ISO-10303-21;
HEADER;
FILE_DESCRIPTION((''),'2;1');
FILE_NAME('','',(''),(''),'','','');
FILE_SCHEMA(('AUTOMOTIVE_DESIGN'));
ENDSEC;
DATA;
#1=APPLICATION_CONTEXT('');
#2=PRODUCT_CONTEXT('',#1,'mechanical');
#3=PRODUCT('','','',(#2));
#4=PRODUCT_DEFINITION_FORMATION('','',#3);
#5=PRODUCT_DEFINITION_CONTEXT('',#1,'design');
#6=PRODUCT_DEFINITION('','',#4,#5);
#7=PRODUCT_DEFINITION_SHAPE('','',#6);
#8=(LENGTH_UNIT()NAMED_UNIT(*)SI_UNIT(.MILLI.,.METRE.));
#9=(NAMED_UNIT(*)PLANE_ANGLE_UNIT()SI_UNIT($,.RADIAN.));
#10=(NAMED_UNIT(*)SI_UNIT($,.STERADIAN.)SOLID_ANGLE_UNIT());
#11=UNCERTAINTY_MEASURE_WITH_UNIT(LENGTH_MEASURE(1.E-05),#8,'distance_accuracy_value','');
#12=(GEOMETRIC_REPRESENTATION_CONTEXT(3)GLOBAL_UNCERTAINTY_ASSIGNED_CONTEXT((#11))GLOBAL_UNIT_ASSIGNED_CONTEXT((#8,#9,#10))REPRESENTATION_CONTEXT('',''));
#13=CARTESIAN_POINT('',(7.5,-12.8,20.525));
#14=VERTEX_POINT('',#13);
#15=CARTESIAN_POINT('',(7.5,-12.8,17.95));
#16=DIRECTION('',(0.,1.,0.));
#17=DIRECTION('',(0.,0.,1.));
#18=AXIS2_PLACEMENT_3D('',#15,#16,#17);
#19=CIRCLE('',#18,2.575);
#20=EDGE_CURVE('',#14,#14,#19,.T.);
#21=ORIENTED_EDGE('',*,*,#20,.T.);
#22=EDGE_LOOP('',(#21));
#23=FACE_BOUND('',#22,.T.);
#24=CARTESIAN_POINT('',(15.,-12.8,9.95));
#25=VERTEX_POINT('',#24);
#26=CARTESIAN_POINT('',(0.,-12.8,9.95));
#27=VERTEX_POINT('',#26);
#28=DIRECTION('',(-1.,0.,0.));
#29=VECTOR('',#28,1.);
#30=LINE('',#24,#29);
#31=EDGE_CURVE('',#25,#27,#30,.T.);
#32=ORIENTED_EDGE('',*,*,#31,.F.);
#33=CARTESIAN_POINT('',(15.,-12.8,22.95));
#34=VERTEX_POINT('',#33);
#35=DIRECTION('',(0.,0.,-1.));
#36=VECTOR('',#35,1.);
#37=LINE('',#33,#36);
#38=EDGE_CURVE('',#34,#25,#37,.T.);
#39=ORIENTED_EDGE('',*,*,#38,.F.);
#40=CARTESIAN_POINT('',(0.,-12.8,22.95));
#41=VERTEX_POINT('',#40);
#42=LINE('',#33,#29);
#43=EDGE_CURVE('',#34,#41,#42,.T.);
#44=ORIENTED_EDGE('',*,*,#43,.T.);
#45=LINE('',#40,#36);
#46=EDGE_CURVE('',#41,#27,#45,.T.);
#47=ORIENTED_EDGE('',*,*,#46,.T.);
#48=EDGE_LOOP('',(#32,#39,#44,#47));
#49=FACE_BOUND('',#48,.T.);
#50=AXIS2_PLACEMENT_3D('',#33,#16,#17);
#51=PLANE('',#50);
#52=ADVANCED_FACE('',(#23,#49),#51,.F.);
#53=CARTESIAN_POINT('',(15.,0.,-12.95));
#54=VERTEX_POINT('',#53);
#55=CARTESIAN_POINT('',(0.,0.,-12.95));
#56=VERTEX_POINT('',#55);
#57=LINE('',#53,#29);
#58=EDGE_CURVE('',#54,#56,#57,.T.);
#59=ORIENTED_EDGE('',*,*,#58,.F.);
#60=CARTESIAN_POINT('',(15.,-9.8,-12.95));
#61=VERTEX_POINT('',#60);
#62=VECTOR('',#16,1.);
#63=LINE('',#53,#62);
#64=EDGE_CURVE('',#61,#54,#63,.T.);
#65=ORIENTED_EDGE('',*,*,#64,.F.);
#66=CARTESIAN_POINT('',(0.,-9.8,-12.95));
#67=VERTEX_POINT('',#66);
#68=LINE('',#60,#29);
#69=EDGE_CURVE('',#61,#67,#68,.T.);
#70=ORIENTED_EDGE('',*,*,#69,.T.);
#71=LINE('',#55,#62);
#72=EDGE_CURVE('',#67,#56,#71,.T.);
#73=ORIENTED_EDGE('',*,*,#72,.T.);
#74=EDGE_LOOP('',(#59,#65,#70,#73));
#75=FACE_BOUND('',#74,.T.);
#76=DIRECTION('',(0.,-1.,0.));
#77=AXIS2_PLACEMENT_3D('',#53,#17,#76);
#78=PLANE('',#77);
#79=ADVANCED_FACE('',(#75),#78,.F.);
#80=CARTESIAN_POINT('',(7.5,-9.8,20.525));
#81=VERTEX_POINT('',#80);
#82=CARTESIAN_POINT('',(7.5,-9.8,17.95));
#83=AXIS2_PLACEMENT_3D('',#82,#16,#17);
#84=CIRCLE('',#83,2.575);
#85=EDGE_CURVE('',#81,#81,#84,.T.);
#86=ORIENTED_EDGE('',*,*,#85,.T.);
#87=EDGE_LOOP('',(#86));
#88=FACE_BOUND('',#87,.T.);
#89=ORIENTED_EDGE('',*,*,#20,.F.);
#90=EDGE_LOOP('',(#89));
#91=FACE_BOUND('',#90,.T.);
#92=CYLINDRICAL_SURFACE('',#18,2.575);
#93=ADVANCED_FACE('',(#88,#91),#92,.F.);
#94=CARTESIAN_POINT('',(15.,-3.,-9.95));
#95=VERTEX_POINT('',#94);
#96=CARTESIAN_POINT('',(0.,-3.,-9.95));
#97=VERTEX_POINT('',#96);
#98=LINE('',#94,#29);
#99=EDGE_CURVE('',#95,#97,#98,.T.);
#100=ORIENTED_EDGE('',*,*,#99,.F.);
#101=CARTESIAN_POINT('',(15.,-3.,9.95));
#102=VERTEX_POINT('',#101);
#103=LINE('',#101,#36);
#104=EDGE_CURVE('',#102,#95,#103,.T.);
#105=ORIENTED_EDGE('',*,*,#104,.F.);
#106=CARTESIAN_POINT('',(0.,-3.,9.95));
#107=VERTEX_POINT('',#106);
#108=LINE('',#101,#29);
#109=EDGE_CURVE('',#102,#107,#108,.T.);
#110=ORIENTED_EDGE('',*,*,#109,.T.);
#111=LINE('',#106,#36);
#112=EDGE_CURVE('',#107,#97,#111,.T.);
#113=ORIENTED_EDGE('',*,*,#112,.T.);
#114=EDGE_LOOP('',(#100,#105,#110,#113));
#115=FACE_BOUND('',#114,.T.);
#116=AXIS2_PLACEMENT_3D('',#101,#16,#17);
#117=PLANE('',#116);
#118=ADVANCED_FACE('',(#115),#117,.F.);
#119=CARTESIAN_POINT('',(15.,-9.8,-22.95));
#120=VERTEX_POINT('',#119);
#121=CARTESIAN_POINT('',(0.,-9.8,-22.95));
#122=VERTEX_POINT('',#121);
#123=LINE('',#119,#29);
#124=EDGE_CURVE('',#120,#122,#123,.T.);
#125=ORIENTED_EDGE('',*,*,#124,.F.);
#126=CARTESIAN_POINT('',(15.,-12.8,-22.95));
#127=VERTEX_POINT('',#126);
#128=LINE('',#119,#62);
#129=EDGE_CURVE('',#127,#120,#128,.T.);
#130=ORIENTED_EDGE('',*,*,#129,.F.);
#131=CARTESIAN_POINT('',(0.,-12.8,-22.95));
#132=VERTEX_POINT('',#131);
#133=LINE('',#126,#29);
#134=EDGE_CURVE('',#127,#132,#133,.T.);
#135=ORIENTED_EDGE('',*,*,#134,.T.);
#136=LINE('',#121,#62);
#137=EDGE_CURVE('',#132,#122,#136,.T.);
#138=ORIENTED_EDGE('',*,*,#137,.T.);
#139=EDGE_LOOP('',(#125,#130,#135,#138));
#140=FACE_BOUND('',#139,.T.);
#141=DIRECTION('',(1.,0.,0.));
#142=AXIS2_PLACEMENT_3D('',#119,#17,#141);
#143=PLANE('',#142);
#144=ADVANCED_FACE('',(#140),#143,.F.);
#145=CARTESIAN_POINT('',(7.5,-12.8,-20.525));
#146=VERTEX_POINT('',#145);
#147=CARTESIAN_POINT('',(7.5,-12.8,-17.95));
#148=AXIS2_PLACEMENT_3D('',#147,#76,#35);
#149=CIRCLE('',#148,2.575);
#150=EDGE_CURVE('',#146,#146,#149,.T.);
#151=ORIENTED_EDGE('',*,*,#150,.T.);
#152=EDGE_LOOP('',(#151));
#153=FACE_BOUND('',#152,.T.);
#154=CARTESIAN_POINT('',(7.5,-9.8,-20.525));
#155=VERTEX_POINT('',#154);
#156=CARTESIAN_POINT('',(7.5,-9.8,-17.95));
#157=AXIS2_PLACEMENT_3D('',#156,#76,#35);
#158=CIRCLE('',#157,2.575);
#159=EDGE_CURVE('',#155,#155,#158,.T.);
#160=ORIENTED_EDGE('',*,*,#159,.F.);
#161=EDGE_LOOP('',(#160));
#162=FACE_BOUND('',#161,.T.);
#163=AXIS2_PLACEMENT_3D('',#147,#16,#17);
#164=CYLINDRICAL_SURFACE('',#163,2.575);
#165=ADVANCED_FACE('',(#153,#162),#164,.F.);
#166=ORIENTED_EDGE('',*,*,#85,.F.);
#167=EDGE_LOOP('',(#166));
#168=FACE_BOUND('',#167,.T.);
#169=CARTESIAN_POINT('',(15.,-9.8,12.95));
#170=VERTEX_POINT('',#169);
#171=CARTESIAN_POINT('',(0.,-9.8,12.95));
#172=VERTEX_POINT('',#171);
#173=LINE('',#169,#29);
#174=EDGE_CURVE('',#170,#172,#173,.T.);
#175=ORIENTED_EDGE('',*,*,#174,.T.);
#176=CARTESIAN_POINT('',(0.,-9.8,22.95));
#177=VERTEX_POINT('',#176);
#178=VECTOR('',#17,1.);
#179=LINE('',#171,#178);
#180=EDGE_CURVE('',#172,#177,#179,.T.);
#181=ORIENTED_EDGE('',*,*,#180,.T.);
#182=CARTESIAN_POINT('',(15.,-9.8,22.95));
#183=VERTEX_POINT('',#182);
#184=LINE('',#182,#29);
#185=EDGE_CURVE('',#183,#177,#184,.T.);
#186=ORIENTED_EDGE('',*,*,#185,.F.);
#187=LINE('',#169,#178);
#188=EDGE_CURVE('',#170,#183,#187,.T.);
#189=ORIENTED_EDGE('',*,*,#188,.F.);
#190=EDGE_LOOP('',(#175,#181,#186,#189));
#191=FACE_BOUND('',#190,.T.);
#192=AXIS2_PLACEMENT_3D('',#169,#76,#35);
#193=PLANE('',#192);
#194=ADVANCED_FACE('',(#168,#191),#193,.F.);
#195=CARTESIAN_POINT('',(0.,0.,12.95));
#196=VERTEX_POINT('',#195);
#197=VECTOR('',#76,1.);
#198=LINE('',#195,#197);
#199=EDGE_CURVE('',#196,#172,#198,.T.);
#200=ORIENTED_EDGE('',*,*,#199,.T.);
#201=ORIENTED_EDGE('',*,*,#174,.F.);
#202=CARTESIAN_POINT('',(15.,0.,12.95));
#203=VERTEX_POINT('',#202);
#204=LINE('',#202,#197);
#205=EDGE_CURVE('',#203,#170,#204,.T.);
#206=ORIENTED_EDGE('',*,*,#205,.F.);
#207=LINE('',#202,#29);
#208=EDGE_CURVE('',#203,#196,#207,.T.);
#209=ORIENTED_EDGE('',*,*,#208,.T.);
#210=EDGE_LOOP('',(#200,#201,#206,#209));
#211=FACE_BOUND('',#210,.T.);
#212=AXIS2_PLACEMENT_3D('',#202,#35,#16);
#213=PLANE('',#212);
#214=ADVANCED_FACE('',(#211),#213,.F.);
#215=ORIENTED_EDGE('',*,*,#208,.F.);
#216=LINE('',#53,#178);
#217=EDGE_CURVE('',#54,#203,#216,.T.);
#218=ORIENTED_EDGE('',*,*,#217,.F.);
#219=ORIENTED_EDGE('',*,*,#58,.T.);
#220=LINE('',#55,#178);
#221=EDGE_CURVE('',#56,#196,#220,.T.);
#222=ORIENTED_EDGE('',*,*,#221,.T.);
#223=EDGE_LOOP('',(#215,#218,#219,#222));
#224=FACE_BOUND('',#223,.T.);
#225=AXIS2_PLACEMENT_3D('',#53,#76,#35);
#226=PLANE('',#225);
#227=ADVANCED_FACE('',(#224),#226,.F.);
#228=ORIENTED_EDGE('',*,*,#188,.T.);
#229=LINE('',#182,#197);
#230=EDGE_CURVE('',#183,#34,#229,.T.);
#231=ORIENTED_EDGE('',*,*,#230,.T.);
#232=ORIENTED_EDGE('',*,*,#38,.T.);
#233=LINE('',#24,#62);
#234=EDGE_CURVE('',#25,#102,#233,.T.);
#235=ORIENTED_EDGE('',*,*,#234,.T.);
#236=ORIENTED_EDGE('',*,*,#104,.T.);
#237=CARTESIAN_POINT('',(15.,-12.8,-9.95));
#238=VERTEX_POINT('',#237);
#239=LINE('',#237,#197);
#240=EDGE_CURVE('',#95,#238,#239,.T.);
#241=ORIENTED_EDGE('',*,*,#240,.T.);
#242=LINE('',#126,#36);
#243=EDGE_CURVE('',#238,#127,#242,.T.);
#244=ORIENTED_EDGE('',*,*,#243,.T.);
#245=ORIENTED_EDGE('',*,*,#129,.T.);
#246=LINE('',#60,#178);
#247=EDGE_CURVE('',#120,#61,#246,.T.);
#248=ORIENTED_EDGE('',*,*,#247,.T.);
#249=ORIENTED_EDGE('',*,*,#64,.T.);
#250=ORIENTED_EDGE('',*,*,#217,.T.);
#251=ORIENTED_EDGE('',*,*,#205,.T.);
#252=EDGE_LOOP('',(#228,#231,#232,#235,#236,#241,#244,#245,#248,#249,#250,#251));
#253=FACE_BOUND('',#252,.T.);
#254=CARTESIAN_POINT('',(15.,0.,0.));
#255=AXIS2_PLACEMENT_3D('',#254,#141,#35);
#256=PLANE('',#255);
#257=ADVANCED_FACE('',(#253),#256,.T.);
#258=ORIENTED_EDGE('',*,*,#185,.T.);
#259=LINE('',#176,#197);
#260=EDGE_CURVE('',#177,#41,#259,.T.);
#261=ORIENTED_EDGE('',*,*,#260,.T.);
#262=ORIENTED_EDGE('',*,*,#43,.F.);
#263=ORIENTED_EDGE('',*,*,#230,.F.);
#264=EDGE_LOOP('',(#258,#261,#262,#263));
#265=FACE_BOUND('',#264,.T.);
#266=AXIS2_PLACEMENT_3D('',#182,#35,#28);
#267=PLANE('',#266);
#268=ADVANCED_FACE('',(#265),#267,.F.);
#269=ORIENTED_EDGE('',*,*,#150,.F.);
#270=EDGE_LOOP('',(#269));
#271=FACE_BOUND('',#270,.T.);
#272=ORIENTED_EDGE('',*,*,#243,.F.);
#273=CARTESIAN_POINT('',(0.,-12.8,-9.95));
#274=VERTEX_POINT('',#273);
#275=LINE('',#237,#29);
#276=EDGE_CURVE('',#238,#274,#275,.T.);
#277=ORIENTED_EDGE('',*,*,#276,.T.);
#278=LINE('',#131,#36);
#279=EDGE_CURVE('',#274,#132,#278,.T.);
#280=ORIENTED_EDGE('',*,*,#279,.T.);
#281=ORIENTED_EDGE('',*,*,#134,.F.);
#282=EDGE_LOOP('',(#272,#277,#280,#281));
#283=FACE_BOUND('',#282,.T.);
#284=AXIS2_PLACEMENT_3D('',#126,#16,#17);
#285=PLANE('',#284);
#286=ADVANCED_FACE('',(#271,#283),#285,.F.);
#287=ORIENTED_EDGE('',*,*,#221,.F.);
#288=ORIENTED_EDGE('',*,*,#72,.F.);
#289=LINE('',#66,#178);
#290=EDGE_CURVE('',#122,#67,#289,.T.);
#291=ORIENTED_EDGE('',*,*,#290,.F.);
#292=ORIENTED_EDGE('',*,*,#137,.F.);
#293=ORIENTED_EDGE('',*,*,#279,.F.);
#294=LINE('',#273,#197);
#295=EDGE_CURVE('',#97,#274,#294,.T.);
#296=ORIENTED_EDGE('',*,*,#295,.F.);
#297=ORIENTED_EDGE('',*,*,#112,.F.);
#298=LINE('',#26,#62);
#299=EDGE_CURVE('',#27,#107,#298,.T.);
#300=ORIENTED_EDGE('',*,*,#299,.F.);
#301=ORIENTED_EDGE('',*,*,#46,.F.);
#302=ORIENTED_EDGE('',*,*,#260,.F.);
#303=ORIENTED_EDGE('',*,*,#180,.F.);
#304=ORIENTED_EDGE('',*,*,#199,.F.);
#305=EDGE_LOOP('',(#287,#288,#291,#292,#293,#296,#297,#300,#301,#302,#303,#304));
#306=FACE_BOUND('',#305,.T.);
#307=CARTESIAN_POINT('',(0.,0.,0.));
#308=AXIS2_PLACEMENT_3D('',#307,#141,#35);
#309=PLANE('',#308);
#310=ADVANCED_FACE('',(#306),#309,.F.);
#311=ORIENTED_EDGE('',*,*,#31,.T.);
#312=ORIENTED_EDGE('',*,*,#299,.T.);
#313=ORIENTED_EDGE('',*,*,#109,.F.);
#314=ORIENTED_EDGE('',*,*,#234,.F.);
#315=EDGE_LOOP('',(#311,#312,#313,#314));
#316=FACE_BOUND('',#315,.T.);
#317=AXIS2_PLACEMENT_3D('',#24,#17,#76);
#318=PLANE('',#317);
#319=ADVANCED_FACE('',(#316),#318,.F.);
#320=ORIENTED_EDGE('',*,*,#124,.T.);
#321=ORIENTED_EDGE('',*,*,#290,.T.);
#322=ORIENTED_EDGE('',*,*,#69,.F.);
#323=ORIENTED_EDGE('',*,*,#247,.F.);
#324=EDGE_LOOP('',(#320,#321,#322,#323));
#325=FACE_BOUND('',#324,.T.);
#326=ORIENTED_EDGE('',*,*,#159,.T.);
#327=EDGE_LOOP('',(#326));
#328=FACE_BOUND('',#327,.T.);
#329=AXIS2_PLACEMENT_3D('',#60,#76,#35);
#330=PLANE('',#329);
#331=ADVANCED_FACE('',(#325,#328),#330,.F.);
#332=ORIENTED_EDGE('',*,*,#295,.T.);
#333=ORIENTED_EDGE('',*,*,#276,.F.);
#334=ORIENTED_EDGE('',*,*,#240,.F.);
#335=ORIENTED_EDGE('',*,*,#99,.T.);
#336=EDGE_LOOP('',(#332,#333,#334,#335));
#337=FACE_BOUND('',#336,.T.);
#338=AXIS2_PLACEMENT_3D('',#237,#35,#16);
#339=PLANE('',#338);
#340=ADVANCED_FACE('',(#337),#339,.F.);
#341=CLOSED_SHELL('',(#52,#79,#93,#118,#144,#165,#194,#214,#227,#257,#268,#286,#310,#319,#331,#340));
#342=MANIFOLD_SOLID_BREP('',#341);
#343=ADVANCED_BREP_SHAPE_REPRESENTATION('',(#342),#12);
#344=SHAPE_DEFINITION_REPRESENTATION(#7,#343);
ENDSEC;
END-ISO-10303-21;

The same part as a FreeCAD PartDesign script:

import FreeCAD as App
import Part
import Sketcher

doc = App.newDocument("Part")
params = doc.addObject("Spreadsheet::Sheet", "Params")
for row, (alias, value) in enumerate([
    ("sketch1_width", "3 mm"),
    ("sketch1_height", "13 mm"),
    ("sketch1_height2", "10 mm"),
    ("sketch1_width2", "9.8 mm"),
    ("sketch1_height3", "19.9 mm"),
    ("pad1_length", "15 mm"),
    ("sketch2_diameter", "5.15 mm"),
], start=1):
    params.set(f"A{row}", alias)
    params.set(f"B{row}", "=" + value)
    params.setAlias(f"B{row}", alias)

body = doc.addObject("PartDesign::Body", "Body")

sketch1 = body.newObject("Sketcher::SketchObject", "Sketch")
sketch1.AttachmentSupport = (doc.getObject("YZ_Plane"), [""])
sketch1.MapMode = "FlatFace"
sketch1.addGeometry([
    Part.LineSegment(App.Vector(-12.8, 22.9, 0), App.Vector(-12.8, 9.9, 0)),
    Part.LineSegment(App.Vector(-12.8, 9.9, 0), App.Vector(-3, 9.9, 0)),
    Part.LineSegment(App.Vector(-3, 9.9, 0), App.Vector(-3, -9.9, 0)),
    Part.LineSegment(App.Vector(-3, -9.9, 0), App.Vector(-12.8, -9.9, 0)),
    Part.LineSegment(App.Vector(-12.8, -9.9, 0), App.Vector(-12.8, -22.9, 0)),
    Part.LineSegment(App.Vector(-12.8, -22.9, 0), App.Vector(-9.8, -22.9, 0)),
    Part.LineSegment(App.Vector(-9.8, -22.9, 0), App.Vector(-9.8, -12.9, 0)),
    Part.LineSegment(App.Vector(-9.8, -12.9, 0), App.Vector(0, -12.9, 0)),
    Part.LineSegment(App.Vector(0, -12.9, 0), App.Vector(0, 12.9, 0)),
    Part.LineSegment(App.Vector(0, 12.9, 0), App.Vector(-9.8, 12.9, 0)),
    Part.LineSegment(App.Vector(-9.8, 12.9, 0), App.Vector(-9.8, 22.9, 0)),
    Part.LineSegment(App.Vector(-9.8, 22.9, 0), App.Vector(-12.8, 22.9, 0)),
], False)
sketch1.addConstraint([
    Sketcher.Constraint("Coincident", 0, 2, 1, 1),
    Sketcher.Constraint("Coincident", 1, 2, 2, 1),
    Sketcher.Constraint("Coincident", 2, 2, 3, 1),
    Sketcher.Constraint("Coincident", 3, 2, 4, 1),
    Sketcher.Constraint("Coincident", 4, 2, 5, 1),
    Sketcher.Constraint("Coincident", 5, 2, 6, 1),
    Sketcher.Constraint("Coincident", 6, 2, 7, 1),
    Sketcher.Constraint("Coincident", 7, 2, 8, 1),
    Sketcher.Constraint("Coincident", 8, 2, 9, 1),
    Sketcher.Constraint("Coincident", 9, 2, 10, 1),
    Sketcher.Constraint("Coincident", 10, 2, 11, 1),
    Sketcher.Constraint("Coincident", 11, 2, 0, 1),
    Sketcher.Constraint("Vertical", 0),
    Sketcher.Constraint("Horizontal", 1),
    Sketcher.Constraint("Vertical", 2),
    Sketcher.Constraint("Horizontal", 3),
    Sketcher.Constraint("Vertical", 4),
    Sketcher.Constraint("Horizontal", 5),
    Sketcher.Constraint("Vertical", 6),
    Sketcher.Constraint("Horizontal", 7),
    Sketcher.Constraint("Vertical", 8),
    Sketcher.Constraint("Horizontal", 9),
    Sketcher.Constraint("Vertical", 10),
    Sketcher.Constraint("Horizontal", 11),
    Sketcher.Constraint("Symmetric", 7, 2, 8, 2, -1, 1),
    Sketcher.Constraint("Symmetric", 0, 2, 3, 2, -1),
    Sketcher.Constraint("Symmetric", 5, 2, 10, 2, -1),
    Sketcher.Constraint("Equal", 3, 7),
    Sketcher.Constraint("DistanceX", 5, 1, 5, 2, 3.0),
    Sketcher.Constraint("DistanceY", 0, 2, 0, 1, 13.0),
    Sketcher.Constraint("DistanceY", 6, 1, 6, 2, 10.0),
    Sketcher.Constraint("DistanceX", 1, 1, 1, 2, 9.8),
    Sketcher.Constraint("DistanceY", 2, 2, 2, 1, 19.9),
])
sketch1.setExpression("Constraints[28]", "Params.sketch1_width")
sketch1.setExpression("Constraints[29]", "Params.sketch1_height")
sketch1.setExpression("Constraints[30]", "Params.sketch1_height2")
sketch1.setExpression("Constraints[31]", "Params.sketch1_width2")
sketch1.setExpression("Constraints[32]", "Params.sketch1_height3")
pad1 = body.newObject("PartDesign::Pad", "Pad")
pad1.Profile = sketch1
pad1.setExpression("Length", "Params.pad1_length")

sketch2 = body.newObject("Sketcher::SketchObject", "Sketch001")
sketch2.AttachmentSupport = (doc.getObject("XZ_Plane"), [""])
sketch2.MapMode = "FlatFace"
sketch2.AttachmentOffset = App.Placement(App.Vector(0, 0, 9.8), App.Rotation())
sketch2.addGeometry(Part.Circle(App.Vector(7.5, 17.9, 0), App.Vector(0, 0, 1), 2.6), False)
sketch2.addConstraint([
    Sketcher.Constraint("Diameter", 0, 5.15),
    Sketcher.Constraint("DistanceX", -1, 1, 0, 3, 7.5),
    Sketcher.Constraint("DistanceY", -1, 1, 0, 3, 17.95),
])
sketch2.setExpression("Constraints[0]", "Params.sketch2_diameter")
pocket1 = body.newObject("PartDesign::Pocket", "Pocket")
pocket1.Profile = sketch2
pocket1.Type = "ThroughAll"
pocket1.Reversed = True
doc.recompute()

mirrored = body.newObject("PartDesign::Mirrored", "Mirrored")
mirrored.Originals = [pocket1]
mirrored.MirrorPlane = (doc.getObject("XY_Plane"), [""])
body.Tip = mirrored

doc.recompute()
